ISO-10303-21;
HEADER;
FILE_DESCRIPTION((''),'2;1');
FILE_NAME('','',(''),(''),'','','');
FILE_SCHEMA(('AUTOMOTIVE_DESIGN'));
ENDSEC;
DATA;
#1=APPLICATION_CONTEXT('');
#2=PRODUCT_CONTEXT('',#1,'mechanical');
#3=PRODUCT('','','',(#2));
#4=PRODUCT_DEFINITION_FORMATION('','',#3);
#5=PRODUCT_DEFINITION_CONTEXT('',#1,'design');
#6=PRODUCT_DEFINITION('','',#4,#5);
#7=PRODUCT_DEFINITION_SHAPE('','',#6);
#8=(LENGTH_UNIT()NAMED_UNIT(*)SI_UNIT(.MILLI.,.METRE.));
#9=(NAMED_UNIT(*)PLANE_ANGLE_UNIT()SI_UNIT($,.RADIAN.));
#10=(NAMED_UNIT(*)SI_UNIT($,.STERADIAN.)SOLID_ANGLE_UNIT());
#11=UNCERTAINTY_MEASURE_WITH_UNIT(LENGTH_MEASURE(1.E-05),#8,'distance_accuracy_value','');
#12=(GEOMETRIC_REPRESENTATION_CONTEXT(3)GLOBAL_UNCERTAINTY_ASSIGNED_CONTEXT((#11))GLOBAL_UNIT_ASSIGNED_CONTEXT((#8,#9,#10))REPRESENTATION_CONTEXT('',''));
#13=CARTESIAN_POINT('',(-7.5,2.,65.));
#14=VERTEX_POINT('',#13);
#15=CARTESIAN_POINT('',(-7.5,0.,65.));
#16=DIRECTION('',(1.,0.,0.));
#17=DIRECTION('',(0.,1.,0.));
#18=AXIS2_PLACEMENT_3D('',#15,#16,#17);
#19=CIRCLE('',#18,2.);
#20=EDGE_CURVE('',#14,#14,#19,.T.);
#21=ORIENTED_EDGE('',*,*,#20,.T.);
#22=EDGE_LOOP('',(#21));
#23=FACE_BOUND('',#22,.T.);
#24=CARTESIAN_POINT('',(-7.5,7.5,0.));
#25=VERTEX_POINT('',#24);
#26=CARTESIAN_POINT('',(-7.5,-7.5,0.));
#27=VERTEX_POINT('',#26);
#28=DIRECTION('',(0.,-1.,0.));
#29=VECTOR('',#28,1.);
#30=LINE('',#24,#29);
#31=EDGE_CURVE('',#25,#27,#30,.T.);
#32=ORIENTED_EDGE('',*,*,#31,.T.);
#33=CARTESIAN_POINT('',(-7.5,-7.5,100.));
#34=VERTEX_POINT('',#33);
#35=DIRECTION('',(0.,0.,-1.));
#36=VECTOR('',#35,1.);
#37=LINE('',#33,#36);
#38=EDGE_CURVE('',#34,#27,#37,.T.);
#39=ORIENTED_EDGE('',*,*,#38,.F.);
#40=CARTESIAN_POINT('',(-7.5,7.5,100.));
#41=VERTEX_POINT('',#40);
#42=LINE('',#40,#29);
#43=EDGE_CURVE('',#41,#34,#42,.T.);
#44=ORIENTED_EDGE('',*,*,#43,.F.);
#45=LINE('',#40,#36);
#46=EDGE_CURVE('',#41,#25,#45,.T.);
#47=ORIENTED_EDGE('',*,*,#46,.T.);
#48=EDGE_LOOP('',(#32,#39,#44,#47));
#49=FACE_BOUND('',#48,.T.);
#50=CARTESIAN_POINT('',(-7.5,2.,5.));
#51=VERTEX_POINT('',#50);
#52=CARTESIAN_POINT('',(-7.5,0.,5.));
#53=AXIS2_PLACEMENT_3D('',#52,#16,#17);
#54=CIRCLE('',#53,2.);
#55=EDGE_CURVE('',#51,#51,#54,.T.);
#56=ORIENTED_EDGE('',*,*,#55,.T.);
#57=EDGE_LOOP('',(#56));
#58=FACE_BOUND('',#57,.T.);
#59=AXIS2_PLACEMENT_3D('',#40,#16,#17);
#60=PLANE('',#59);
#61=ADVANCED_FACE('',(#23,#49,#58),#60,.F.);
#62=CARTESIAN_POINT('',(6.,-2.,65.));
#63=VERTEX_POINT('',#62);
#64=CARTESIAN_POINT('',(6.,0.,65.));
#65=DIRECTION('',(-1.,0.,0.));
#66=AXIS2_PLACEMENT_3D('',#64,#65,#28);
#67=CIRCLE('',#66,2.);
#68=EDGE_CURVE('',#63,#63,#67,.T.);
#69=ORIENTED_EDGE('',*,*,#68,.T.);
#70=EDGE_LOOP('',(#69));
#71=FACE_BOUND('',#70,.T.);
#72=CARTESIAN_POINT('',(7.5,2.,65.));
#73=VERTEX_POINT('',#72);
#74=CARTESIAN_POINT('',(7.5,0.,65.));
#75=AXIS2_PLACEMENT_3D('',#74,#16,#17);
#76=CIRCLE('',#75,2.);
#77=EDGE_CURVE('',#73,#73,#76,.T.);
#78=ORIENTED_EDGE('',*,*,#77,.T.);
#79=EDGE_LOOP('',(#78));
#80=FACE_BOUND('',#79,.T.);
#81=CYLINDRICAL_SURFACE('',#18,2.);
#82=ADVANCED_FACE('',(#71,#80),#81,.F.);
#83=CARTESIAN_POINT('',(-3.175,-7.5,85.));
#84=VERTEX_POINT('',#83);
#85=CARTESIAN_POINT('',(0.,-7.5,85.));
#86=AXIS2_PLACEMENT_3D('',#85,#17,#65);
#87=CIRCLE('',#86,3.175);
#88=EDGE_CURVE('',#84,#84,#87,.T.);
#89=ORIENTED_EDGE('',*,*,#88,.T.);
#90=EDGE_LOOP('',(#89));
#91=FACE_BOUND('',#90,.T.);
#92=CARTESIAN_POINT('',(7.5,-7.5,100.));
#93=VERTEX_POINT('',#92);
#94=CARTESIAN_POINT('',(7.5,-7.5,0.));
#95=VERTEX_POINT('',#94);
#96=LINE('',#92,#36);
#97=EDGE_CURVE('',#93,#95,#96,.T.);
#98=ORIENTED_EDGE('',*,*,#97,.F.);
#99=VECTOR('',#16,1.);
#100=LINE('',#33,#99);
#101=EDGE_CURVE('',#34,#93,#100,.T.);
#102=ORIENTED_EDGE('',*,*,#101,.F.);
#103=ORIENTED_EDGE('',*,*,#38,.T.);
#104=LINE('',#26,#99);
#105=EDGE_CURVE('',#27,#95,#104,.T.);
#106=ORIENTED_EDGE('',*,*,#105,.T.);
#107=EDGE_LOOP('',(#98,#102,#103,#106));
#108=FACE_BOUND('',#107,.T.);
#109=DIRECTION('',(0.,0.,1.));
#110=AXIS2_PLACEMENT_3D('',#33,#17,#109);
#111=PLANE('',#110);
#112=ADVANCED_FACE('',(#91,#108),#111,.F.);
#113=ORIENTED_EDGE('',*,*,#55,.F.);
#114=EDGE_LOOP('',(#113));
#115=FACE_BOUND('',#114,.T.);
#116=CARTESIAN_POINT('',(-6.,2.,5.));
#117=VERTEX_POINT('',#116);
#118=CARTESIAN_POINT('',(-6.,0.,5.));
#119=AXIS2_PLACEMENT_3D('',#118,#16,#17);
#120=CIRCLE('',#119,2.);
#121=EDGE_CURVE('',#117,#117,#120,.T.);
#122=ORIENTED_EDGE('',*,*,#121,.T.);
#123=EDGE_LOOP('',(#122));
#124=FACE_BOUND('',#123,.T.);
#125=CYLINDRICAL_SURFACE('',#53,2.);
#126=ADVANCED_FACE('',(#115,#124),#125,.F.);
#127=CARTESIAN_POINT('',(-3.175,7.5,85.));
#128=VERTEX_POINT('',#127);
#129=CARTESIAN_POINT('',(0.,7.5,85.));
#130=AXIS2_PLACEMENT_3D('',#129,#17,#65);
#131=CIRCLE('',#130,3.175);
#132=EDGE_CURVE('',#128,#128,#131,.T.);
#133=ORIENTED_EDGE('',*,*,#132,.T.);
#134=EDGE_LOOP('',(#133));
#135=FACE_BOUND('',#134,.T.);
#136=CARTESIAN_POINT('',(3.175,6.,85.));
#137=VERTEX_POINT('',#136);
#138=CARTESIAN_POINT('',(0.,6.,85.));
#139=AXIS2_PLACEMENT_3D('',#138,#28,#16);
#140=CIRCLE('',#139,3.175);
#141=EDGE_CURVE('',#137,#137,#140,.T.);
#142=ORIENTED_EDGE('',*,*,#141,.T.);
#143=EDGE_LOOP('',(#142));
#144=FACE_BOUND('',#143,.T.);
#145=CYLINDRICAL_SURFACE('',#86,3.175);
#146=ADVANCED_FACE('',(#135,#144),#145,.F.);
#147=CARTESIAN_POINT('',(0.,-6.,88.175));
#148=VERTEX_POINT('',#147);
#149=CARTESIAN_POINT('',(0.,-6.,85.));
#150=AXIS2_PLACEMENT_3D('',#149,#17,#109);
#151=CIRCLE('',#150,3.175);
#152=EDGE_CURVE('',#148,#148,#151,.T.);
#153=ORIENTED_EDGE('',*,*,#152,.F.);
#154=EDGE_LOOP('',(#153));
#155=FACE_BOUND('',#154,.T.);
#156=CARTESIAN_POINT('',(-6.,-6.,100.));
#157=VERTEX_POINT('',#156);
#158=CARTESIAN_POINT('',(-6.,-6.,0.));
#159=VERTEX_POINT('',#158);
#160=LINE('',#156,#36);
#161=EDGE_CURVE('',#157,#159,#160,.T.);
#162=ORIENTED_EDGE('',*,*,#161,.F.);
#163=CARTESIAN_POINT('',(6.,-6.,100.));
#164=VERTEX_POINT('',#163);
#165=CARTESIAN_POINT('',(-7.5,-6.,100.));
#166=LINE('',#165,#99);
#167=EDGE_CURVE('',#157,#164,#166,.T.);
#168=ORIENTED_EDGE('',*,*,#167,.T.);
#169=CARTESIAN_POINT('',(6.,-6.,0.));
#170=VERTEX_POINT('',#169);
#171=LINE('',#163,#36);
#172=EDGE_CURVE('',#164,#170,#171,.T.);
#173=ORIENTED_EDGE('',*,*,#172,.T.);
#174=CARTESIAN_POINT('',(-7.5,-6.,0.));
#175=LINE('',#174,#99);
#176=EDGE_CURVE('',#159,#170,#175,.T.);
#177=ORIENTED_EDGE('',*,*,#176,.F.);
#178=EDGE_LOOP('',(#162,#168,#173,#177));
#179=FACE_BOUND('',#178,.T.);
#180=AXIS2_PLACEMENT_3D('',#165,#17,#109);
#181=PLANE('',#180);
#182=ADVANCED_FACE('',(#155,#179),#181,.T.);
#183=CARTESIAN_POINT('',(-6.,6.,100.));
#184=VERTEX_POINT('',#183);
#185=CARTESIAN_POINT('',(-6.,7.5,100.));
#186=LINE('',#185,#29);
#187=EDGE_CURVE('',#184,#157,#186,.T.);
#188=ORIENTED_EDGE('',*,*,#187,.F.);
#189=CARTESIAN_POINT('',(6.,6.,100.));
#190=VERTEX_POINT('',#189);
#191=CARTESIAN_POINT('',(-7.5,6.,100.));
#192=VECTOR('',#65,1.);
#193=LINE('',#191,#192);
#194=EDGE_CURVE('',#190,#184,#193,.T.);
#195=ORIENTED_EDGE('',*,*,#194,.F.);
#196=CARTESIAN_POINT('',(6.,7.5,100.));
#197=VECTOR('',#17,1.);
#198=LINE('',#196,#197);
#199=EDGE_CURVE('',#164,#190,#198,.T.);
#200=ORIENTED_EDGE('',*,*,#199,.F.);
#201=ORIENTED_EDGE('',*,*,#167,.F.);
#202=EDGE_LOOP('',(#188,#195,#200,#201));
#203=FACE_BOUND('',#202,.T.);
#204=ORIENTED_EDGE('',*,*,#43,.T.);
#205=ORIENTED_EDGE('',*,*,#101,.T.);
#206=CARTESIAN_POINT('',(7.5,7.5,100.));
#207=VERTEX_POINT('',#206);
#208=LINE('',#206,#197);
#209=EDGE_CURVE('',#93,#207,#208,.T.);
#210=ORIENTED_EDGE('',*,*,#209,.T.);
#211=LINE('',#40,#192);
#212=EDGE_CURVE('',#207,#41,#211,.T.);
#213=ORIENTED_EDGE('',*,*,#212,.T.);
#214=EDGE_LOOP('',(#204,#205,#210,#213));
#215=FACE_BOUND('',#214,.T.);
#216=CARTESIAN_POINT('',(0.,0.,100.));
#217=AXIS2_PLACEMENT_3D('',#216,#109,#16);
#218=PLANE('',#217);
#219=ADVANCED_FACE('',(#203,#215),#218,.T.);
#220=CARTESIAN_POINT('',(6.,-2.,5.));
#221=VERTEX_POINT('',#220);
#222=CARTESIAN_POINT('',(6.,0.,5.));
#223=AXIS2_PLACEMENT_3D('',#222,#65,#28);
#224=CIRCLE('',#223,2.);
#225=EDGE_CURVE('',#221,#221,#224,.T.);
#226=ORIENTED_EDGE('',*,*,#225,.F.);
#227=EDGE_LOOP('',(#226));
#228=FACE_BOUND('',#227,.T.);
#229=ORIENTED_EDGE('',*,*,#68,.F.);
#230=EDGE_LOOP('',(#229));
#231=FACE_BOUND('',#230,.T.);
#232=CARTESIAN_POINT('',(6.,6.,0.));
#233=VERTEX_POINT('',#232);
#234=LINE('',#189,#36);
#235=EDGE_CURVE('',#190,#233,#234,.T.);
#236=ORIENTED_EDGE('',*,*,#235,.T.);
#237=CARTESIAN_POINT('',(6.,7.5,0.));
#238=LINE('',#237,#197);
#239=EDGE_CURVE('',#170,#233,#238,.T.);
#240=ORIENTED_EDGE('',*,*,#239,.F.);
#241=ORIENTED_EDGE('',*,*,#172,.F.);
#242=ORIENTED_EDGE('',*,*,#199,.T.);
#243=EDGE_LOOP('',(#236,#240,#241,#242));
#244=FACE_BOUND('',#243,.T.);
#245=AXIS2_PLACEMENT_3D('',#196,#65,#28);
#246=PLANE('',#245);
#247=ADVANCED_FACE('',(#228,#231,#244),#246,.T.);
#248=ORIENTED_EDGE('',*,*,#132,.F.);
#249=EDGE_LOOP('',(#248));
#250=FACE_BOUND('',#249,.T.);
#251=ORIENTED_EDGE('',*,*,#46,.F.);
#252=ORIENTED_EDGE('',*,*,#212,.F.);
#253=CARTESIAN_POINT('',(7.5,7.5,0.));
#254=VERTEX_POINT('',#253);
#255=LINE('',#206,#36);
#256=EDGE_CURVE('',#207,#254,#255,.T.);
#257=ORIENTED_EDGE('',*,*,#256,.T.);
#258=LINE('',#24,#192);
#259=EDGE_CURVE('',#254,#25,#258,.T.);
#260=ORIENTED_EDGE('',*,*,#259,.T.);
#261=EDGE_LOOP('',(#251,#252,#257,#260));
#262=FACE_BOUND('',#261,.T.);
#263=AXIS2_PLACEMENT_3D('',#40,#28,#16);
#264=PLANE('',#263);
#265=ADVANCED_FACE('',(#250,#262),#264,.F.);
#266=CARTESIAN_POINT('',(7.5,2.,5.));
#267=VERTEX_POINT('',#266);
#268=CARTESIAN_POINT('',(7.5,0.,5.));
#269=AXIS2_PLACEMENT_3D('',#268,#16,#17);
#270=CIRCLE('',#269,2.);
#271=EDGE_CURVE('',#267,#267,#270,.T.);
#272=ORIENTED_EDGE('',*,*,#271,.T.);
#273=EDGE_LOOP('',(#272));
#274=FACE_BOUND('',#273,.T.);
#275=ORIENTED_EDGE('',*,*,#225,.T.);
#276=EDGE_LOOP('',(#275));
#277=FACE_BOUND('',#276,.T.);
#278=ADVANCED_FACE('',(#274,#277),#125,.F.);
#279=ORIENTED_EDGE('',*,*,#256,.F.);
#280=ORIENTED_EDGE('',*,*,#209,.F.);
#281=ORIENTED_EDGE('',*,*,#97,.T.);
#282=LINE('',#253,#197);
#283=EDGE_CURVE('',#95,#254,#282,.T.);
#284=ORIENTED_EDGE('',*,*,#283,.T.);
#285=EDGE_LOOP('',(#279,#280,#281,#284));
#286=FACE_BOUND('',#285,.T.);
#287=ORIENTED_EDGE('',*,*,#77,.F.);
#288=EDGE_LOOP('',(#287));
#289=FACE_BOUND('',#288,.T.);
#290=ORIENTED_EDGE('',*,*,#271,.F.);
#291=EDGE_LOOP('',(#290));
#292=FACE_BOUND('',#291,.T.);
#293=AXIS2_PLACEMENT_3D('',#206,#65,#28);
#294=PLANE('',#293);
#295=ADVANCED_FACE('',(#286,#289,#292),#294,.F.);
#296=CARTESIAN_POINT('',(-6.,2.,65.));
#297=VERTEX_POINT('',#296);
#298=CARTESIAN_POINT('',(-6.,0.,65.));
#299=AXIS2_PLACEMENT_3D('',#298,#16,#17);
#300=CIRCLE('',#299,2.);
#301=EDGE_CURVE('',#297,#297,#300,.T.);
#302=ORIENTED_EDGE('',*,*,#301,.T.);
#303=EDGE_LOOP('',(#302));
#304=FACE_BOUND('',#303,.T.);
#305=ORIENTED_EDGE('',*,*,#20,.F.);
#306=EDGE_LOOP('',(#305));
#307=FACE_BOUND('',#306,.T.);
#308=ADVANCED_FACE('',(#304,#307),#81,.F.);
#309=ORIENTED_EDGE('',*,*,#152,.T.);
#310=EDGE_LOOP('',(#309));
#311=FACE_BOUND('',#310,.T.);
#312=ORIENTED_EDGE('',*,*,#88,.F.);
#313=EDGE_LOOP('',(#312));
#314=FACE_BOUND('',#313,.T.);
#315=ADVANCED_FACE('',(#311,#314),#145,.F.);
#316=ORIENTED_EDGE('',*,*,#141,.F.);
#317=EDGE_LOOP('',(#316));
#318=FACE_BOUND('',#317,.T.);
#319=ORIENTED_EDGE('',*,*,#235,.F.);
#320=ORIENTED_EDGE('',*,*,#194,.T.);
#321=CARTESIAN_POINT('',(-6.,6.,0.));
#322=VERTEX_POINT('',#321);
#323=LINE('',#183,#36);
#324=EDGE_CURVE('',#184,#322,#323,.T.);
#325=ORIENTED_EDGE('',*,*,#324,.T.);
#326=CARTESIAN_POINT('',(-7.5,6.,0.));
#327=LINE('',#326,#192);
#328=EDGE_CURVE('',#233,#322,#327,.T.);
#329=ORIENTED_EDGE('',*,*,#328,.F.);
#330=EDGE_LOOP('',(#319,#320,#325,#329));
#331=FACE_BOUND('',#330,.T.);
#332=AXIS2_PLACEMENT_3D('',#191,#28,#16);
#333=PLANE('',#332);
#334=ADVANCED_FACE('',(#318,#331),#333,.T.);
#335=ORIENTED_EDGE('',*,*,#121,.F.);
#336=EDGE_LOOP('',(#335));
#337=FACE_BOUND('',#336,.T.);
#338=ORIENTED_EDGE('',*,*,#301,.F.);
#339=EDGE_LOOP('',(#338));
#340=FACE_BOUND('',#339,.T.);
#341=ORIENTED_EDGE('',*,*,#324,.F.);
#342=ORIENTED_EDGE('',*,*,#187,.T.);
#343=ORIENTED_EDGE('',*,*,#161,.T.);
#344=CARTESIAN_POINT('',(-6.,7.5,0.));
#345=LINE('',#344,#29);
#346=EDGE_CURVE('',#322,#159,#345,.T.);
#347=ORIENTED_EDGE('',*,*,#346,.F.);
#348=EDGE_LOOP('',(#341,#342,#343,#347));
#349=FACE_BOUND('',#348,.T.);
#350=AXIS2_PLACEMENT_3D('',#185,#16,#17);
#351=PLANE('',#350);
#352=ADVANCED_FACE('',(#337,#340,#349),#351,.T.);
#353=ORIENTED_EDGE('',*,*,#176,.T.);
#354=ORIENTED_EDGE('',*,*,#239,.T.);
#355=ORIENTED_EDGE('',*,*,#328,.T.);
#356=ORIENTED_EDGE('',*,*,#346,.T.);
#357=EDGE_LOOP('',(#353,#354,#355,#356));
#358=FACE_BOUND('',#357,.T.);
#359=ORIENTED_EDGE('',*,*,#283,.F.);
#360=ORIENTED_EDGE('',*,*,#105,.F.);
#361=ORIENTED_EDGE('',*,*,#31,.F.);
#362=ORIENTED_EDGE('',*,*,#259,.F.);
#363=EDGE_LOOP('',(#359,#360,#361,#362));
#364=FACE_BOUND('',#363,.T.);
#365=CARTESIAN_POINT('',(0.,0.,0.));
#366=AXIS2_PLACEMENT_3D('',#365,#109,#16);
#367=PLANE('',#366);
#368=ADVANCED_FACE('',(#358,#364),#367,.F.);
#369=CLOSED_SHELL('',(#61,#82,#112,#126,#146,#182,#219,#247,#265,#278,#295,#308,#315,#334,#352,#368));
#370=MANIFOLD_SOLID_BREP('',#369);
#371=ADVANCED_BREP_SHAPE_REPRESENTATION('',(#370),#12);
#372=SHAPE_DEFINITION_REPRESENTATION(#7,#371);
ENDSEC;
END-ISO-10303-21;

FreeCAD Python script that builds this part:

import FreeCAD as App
import Part
import Sketcher

V = App.Vector


def add_polygon(sketch, points):
    """Adds a closed chain of lines whose ends are joined by coincident constraints."""
    first, n = sketch.GeometryCount, len(points)
    for a, b in zip(points, points[1:] + points[:1]):
        sketch.addGeometry(Part.LineSegment(App.Vector(*a, 0), App.Vector(*b, 0)), False)
    for i in range(n):
        sketch.addConstraint(Sketcher.Constraint("Coincident", first + i, 2, first + (i + 1) % n, 1))

doc = App.newDocument("Part")
body = doc.addObject("PartDesign::Body", "Body")

sketch1 = body.newObject("Sketcher::SketchObject", "Sketch")
sketch1.AttachmentSupport = (doc.getObject("XY_Plane"), [""])
sketch1.MapMode = "FlatFace"
add_polygon(sketch1, [(-8, 8), (-8, -8), (8, -8), (8, 8)])
add_polygon(sketch1, [(6, -6), (-6, -6), (-6, 6), (6, 6)])
sketch1.addConstraint([
    Sketcher.Constraint("Vertical", 0),
    Sketcher.Constraint("Horizontal", 1),
    Sketcher.Constraint("Vertical", 2),
    Sketcher.Constraint("Horizontal", 3),
    Sketcher.Constraint("Horizontal", 4),
    Sketcher.Constraint("Vertical", 5),
    Sketcher.Constraint("Horizontal", 6),
    Sketcher.Constraint("Vertical", 7),
    Sketcher.Constraint("Symmetric", 0, 2, 2, 2, -1, 1),
    Sketcher.Constraint("Symmetric", 4, 2, 6, 2, -1, 1),
    Sketcher.Constraint("Equal", 3, 0),
    Sketcher.Constraint("Equal", 6, 5),
    Sketcher.Constraint("DistanceX", 1, 1, 1, 2, 15.0),
    Sketcher.Constraint("DistanceX", 4, 2, 4, 1, 12.0),
])
pad1 = body.newObject("PartDesign::Pad", "Pad")
pad1.Profile = sketch1
pad1.Length = 100

sketch2 = body.newObject("Sketcher::SketchObject", "Sketch001")
sketch2.AttachmentSupport = (doc.getObject("YZ_Plane"), [""])
sketch2.MapMode = "FlatFace"
sketch2.AttachmentOffset = App.Placement(V(0, 0, 7.5), App.Rotation())
sketch2.addGeometry([
    Part.Circle(V(0, 5, 0), V(0, 0, 1), 2),
    Part.Circle(V(0, 65, 0), V(0, 0, 1), 2),
], False)
sketch2.addConstraint([
    Sketcher.Constraint("Equal", 0, 1),
    Sketcher.Constraint("PointOnObject", 0, 3, -2),
    Sketcher.Constraint("PointOnObject", 1, 3, -2),
    Sketcher.Constraint("Diameter", 0, 4.0),
    Sketcher.Constraint("DistanceY", -1, 1, 0, 3, 5.0),
    Sketcher.Constraint("DistanceY", -1, 1, 1, 3, 65.0),
])
pocket1 = body.newObject("PartDesign::Pocket", "Pocket")
pocket1.Profile = sketch2
pocket1.Type = "ThroughAll"

sketch3 = body.newObject("Sketcher::SketchObject", "Sketch002")
sketch3.AttachmentSupport = (doc.getObject("XZ_Plane"), [""])
sketch3.MapMode = "FlatFace"
sketch3.AttachmentOffset = App.Placement(V(0, 0, -7.5), App.Rotation())
sketch3.addGeometry(Part.Circle(V(0, 85, 0), V(0, 0, 1), 3.2), False)
sketch3.addConstraint([
    Sketcher.Constraint("PointOnObject", 0, 3, -2),
    Sketcher.Constraint("Diameter", 0, 6.35),
    Sketcher.Constraint("DistanceY", -1, 1, 0, 3, 85.0),
])
pocket2 = body.newObject("PartDesign::Pocket", "Pocket001")
pocket2.Profile = sketch3
pocket2.Type = "ThroughAll"
pocket2.Reversed = True

doc.recompute()
